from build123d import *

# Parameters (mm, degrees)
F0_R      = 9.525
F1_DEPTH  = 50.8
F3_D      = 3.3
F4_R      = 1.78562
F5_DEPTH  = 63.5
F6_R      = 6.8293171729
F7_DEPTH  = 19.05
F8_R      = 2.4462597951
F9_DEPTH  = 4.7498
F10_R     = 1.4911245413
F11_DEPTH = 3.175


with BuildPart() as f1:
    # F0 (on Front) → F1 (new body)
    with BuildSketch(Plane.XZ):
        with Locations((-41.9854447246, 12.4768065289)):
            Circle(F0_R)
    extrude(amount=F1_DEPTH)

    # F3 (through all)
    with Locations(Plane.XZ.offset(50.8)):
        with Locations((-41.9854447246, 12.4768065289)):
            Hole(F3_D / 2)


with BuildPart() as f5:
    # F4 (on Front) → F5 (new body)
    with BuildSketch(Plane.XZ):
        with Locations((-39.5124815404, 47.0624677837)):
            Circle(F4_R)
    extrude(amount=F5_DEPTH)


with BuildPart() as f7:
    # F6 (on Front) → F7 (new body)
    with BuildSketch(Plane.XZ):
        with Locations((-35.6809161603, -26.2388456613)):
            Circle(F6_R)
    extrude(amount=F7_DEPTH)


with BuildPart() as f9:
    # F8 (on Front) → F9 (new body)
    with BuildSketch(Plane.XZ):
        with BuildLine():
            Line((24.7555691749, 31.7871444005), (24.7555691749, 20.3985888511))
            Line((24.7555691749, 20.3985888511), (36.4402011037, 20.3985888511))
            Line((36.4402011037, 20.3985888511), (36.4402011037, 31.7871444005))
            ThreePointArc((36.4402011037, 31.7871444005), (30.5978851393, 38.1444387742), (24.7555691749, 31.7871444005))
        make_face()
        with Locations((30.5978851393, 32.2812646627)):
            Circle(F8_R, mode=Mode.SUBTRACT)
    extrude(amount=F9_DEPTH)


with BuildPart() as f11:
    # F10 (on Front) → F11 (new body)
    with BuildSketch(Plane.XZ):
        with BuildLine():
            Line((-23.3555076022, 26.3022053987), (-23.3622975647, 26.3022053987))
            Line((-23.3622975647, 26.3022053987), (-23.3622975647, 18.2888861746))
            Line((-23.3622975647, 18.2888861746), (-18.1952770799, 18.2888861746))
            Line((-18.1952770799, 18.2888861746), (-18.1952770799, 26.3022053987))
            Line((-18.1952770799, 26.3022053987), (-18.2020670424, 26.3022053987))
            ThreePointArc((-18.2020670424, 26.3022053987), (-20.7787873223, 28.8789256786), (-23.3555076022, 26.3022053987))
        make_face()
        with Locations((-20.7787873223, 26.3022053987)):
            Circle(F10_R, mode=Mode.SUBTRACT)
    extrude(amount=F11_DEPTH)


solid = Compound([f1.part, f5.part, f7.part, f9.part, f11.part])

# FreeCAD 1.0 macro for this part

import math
import FreeCAD as App
import Part
import Sketcher

V = App.Vector
Q = App.Units.Quantity

doc = App.newDocument("Part")
params = doc.addObject("Spreadsheet::Sheet", "Params")
for row, (alias, value) in enumerate([
    ("sketch1_diameter", "0.75 in"),
    ("pad1_length", "2 in"),
    ("hole_diameter", "3.3 mm"),
    ("pad2_length", "2.5 in"),
    ("pad3_length", "0.75 in"),
    ("pad4_length", "0.187 in"),
    ("pad5_length", "0.125 in"),
], start=1):
    params.set(f"A{row}", alias)
    params.set(f"B{row}", "=" + value)
    params.setAlias(f"B{row}", alias)

body = doc.addObject("PartDesign::Body", "Body")

sketch1 = body.newObject("Sketcher::SketchObject", "Sketch")
sketch1.AttachmentSupport = (doc.getObject("XZ_Plane"), [""])
sketch1.MapMode = "FlatFace"
sketch1.addGeometry(Part.Circle(V(-42, 12, 0), V(0, 0, 1), 10), False)
sketch1.addConstraint([
    Sketcher.Constraint("Diameter", 0, Q("0.75 in")),
    Sketcher.Constraint("DistanceX", 0, 3, -1, 1, 41.985445),
    Sketcher.Constraint("DistanceY", -1, 1, 0, 3, 12.476807),
])
sketch1.setExpression("Constraints[0]", "Params.sketch1_diameter")
pad1 = body.newObject("PartDesign::Pad", "Pad")
pad1.Profile = sketch1
pad1.setExpression("Length", "Params.pad1_length")

sketch2 = body.newObject("Sketcher::SketchObject", "Sketch001")
sketch2.AttachmentSupport = (doc.getObject("XZ_Plane"), [""])
sketch2.MapMode = "FlatFace"
sketch2.AttachmentOffset = App.Placement(V(0, 0, 2 * 25.4), App.Rotation())
sketch2.addGeometry(Part.Circle(V(-42, 12.5, 0), V(0, 0, 1), 1.6), False)
sketch2.addConstraint([
    Sketcher.Constraint("Diameter", 0, 3.3),
    Sketcher.Constraint("DistanceX", 0, 3, -1, 1, 41.985445),
    Sketcher.Constraint("DistanceY", -1, 1, 0, 3, 12.476807),
])
doc.recompute()
hole = body.newObject("PartDesign::Hole", "Hole")
hole.Profile = sketch2
hole.ThreadType = "None"
hole.setExpression("Diameter", "Params.hole_diameter")
hole.DepthType = "ThroughAll"
body2 = doc.addObject("PartDesign::Body", "Body001")

sketch3 = body2.newObject("Sketcher::SketchObject", "Sketch002")
sketch3.AttachmentSupport = (doc.getObject("XZ_Plane001"), [""])
sketch3.MapMode = "FlatFace"
sketch3.addGeometry(Part.Circle(V(-39.5, 47.1, 0), V(0, 0, 1), 1.8), False)
sketch3.addConstraint([
    Sketcher.Constraint("Diameter", 0, Q("0.1406 in")),
    Sketcher.Constraint("DistanceX", 0, 3, -1, 1, 39.512482),
    Sketcher.Constraint("DistanceY", -1, 1, 0, 3, 47.062468),
])
pad2 = body2.newObject("PartDesign::Pad", "Pad001")
pad2.Profile = sketch3
pad2.setExpression("Length", "Params.pad2_length")
body3 = doc.addObject("PartDesign::Body", "Body002")

sketch4 = body3.newObject("Sketcher::SketchObject", "Sketch003")
sketch4.AttachmentSupport = (doc.getObject("XZ_Plane002"), [""])
sketch4.MapMode = "FlatFace"
sketch4.addGeometry(Part.Circle(V(-36, -26, 0), V(0, 0, 1), 7), False)
sketch4.addConstraint([
    Sketcher.Constraint("Diameter", 0, 13.658634),
    Sketcher.Constraint("DistanceX", 0, 3, -1, 1, 35.680916),
    Sketcher.Constraint("DistanceY", 0, 3, -1, 1, 26.238846),
])
pad3 = body3.newObject("PartDesign::Pad", "Pad002")
pad3.Profile = sketch4
pad3.setExpression("Length", "Params.pad3_length")
body4 = doc.addObject("PartDesign::Body", "Body003")

sketch5 = body4.newObject("Sketcher::SketchObject", "Sketch004")
sketch5.AttachmentSupport = (doc.getObject("XZ_Plane003"), [""])
sketch5.MapMode = "FlatFace"
sketch5.addGeometry([
    Part.LineSegment(V(24.8, 31.8, 0), V(24.8, 20.4, 0)),
    Part.LineSegment(V(24.8, 20.4, 0), V(36.4, 20.4, 0)),
    Part.LineSegment(V(36.4, 20.4, 0), V(36.4, 31.8, 0)),
    Part.ArcOfCircle(Part.Circle(V(30.6, 32.3, 0), V(0, 0, 1), 5.9), math.radians(-5), math.radians(185)),
    Part.Circle(V(30.6, 32.3, 0), V(0, 0, 1), 2.4),
], False)
sketch5.addConstraint([
    Sketcher.Constraint("Coincident", 0, 2, 1, 1),
    Sketcher.Constraint("Coincident", 1, 2, 2, 1),
    Sketcher.Constraint("Coincident", 2, 2, 3, 1),
    Sketcher.Constraint("Coincident", 3, 2, 0, 1),
    Sketcher.Constraint("Vertical", 0),
    Sketcher.Constraint("Horizontal", 1),
    Sketcher.Constraint("Vertical", 2),
    Sketcher.Constraint("Coincident", 4, 3, 3, 3),
    Sketcher.Constraint("Horizontal", 2, 2, 3, 2),
    Sketcher.Constraint("Diameter", 4, 4.89252),
    Sketcher.Constraint("Radius", 3, 5.863174),
    Sketcher.Constraint("DistanceX", 1, 1, 1, 2, 11.684632),
    Sketcher.Constraint("DistanceX", -1, 1, 1, 2, 36.440201),
    Sketcher.Constraint("DistanceY", 0, 2, 0, 1, 11.388556),
    Sketcher.Constraint("DistanceY", -1, 1, 0, 2, 20.398589),
])
pad4 = body4.newObject("PartDesign::Pad", "Pad003")
pad4.Profile = sketch5
pad4.setExpression("Length", "Params.pad4_length")
body5 = doc.addObject("PartDesign::Body", "Body004")

sketch6 = body5.newObject("Sketcher::SketchObject", "Sketch005")
sketch6.AttachmentSupport = (doc.getObject("XZ_Plane004"), [""])
sketch6.MapMode = "FlatFace"
sketch6.addGeometry([
    Part.LineSegment(V(-23.356, 26.302, 0), V(-23.362, 26.302, 0)),
    Part.LineSegment(V(-23.362, 26.302, 0), V(-23.362, 18.289, 0)),
    Part.LineSegment(V(-23.362, 18.289, 0), V(-18.195, 18.289, 0)),
    Part.LineSegment(V(-18.195, 18.289, 0), V(-18.195, 26.302, 0)),
    Part.LineSegment(V(-18.195, 26.302, 0), V(-18.202, 26.302, 0)),
    Part.ArcOfCircle(Part.Circle(V(-20.779, 26.302, 0), V(0, 0, 1), 2.577), math.radians(0), math.radians(180)),
    Part.Circle(V(-20.779, 26.302, 0), V(0, 0, 1), 1.491),
], False)
sketch6.addConstraint([
    Sketcher.Constraint("Coincident", 0, 2, 1, 1),
    Sketcher.Constraint("Coincident", 1, 2, 2, 1),
    Sketcher.Constraint("Coincident", 2, 2, 3, 1),
    Sketcher.Constraint("Coincident", 3, 2, 4, 1),
    Sketcher.Constraint("Coincident", 4, 2, 5, 1),
    Sketcher.Constraint("Coincident", 5, 2, 0, 1),
    Sketcher.Constraint("Horizontal", 0),
    Sketcher.Constraint("Vertical", 1),
    Sketcher.Constraint("Horizontal", 2),
    Sketcher.Constraint("Vertical", 3),
    Sketcher.Constraint("Horizontal", 4),
    Sketcher.Constraint("Coincident", 6, 3, 5, 3),
    Sketcher.Constraint("Horizontal", 6, 3, 0, 2),
    Sketcher.Constraint("Horizontal", 0, 2, 3, 2),
    Sketcher.Constraint("Equal", 0, 4),
    Sketcher.Constraint("Diameter", 6, 2.982249),
    Sketcher.Constraint("Radius", 5, 2.57672),
    Sketcher.Constraint("DistanceX", 0, 2, 0, 1, 0.00679),
    Sketcher.Constraint("DistanceY", 1, 2, 1, 1, 8.013319),
    Sketcher.Constraint("DistanceX", 5, 3, -1, 1, 20.778787),
    Sketcher.Constraint("DistanceY", -1, 1, 5, 3, 26.302205),
])
pad5 = body5.newObject("PartDesign::Pad", "Pad004")
pad5.Profile = sketch6
pad5.setExpression("Length", "Params.pad5_length")

doc.recompute()
